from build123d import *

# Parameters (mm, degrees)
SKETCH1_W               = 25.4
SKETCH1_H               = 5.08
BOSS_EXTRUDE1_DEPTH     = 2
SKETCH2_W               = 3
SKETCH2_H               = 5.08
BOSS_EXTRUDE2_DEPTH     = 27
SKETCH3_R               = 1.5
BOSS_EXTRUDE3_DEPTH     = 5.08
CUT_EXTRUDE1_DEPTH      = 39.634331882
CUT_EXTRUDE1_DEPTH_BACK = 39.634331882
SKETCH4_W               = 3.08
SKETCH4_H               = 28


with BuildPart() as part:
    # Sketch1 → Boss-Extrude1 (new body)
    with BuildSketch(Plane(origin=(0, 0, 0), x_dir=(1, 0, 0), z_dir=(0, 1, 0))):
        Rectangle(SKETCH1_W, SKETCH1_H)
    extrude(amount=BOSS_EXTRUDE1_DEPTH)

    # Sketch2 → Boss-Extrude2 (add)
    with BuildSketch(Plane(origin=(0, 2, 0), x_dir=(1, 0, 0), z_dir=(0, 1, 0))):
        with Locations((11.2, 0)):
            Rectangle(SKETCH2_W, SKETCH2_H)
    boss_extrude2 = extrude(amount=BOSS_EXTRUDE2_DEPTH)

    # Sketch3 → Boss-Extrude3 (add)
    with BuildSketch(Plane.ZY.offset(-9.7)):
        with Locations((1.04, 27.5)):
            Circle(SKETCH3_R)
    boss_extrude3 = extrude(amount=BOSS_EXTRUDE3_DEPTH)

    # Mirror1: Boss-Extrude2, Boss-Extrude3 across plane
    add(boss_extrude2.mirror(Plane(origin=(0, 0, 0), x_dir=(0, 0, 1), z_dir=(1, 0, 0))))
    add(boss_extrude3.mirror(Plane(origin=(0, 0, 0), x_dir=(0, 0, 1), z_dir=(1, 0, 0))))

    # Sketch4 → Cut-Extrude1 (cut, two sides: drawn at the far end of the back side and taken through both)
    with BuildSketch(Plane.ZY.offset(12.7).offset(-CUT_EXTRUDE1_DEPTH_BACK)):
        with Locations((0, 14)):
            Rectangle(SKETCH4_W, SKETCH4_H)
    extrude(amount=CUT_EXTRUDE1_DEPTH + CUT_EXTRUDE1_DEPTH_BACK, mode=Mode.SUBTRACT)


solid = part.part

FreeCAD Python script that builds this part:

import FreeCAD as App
import Part
import Sketcher

V = App.Vector


def add_polygon(sketch, points):
    """Adds a closed chain of lines whose ends are joined by coincident constraints."""
    first, n = sketch.GeometryCount, len(points)
    for a, b in zip(points, points[1:] + points[:1]):
        sketch.addGeometry(Part.LineSegment(App.Vector(*a, 0), App.Vector(*b, 0)), False)
    for i in range(n):
        sketch.addConstraint(Sketcher.Constraint("Coincident", first + i, 2, first + (i + 1) % n, 1))

doc = App.newDocument("Part")
body = doc.addObject("PartDesign::Body", "Body")

sketch1 = doc.addObject("Sketcher::SketchObject", "Sketch")
body.addObject(sketch1)
sketch1.AttachmentSupport = (doc.XZ_Plane, [""])
sketch1.MapMode = "FlatFace"
add_polygon(sketch1, [(-13, -3), (-13, 3), (13, 3), (13, -3)])
sketch1.addConstraint(Sketcher.Constraint("Vertical", 0))
sketch1.addConstraint(Sketcher.Constraint("Horizontal", 1))
sketch1.addConstraint(Sketcher.Constraint("Vertical", 2))
sketch1.addConstraint(Sketcher.Constraint("Horizontal", 3))
sketch1.addConstraint(Sketcher.Constraint("Symmetric", 0, 2, 2, 2, -1, 1))
sketch1.addConstraint(Sketcher.Constraint("DistanceX", 1, 1, 1, 2, 25.4))
sketch1.addConstraint(Sketcher.Constraint("DistanceY", 0, 1, 0, 2, 5.08))
pad1 = doc.addObject("PartDesign::Pad", "Pad")
body.addObject(pad1)
pad1.Profile = sketch1
pad1.Length = 2
pad1.Reversed = True

sketch2 = doc.addObject("Sketcher::SketchObject", "Sketch001")
body.addObject(sketch2)
sketch2.AttachmentSupport = (doc.XZ_Plane, [""])
sketch2.MapMode = "FlatFace"
sketch2.AttachmentOffset = App.Placement(V(0, 0, -2), App.Rotation())
add_polygon(sketch2, [(9.7, -2.5), (9.7, 2.5), (12.7, 2.5), (12.7, -2.5)])
sketch2.addConstraint(Sketcher.Constraint("Vertical", 0))
sketch2.addConstraint(Sketcher.Constraint("Horizontal", 1))
sketch2.addConstraint(Sketcher.Constraint("Vertical", 2))
sketch2.addConstraint(Sketcher.Constraint("Horizontal", 3))
sketch2.addConstraint(Sketcher.Constraint("DistanceX", 1, 1, 1, 2, 3.0))
sketch2.addConstraint(Sketcher.Constraint("DistanceY", 0, 1, 0, 2, 5.08))
sketch2.addConstraint(Sketcher.Constraint("DistanceX", -1, 1, 0, 2, 9.7))
sketch2.addConstraint(Sketcher.Constraint("DistanceY", -1, 1, 0, 2, 2.54))
pad2 = doc.addObject("PartDesign::Pad", "Pad001")
body.addObject(pad2)
pad2.Profile = sketch2
pad2.Length = 27
pad2.Reversed = True

sketch3 = doc.addObject("Sketcher::SketchObject", "Sketch002")
body.addObject(sketch3)
sketch3.AttachmentSupport = (doc.YZ_Plane, [""])
sketch3.MapMode = "FlatFace"
sketch3.AttachmentOffset = App.Placement(V(0, 0, 9.7), App.Rotation())
sketch3.addGeometry(Part.Circle(V(27.5, 1, 0), V(0, 0, 1), 1.5), False)
sketch3.addConstraint(Sketcher.Constraint("Diameter", 0, 3.0))
sketch3.addConstraint(Sketcher.Constraint("DistanceX", -1, 1, 0, 3, 27.5))
sketch3.addConstraint(Sketcher.Constraint("DistanceY", -1, 1, 0, 3, 1.04))
pad3 = doc.addObject("PartDesign::Pad", "Pad002")
body.addObject(pad3)
pad3.Profile = sketch3
pad3.Length = 5.08
pad3.Reversed = True
doc.recompute()

mirrored = doc.addObject("PartDesign::Mirrored", "Mirrored")
body.addObject(mirrored)
mirrored.Originals = [pad2, pad3]
mirrored.MirrorPlane = (doc.YZ_Plane, [""])
body.Tip = mirrored

sketch4 = doc.addObject("Sketcher::SketchObject", "Sketch003")
body.addObject(sketch4)
sketch4.AttachmentSupport = (doc.YZ_Plane, [""])
sketch4.MapMode = "FlatFace"
sketch4.AttachmentOffset = App.Placement(V(0, 0, -12.7), App.Rotation())
add_polygon(sketch4, [(28, -1.5), (0, -1.5), (0, 1.5), (28, 1.5)])
sketch4.addConstraint(Sketcher.Constraint("Horizontal", 0))
sketch4.addConstraint(Sketcher.Constraint("Vertical", 1))
sketch4.addConstraint(Sketcher.Constraint("Horizontal", 2))
sketch4.addConstraint(Sketcher.Constraint("Vertical", 3))
sketch4.addConstraint(Sketcher.Constraint("Symmetric", 0, 2, 1, 2, -1, 1))
sketch4.addConstraint(Sketcher.Constraint("DistanceX", 0, 2, 0, 1, 28.0))
sketch4.addConstraint(Sketcher.Constraint("DistanceY", 1, 1, 1, 2, 3.08))
pocket1 = doc.addObject("PartDesign::Pocket", "Pocket")
body.addObject(pocket1)
pocket1.Profile = sketch4
pocket1.Type = "ThroughAll"
pocket1.Midplane = True

doc.recompute()
